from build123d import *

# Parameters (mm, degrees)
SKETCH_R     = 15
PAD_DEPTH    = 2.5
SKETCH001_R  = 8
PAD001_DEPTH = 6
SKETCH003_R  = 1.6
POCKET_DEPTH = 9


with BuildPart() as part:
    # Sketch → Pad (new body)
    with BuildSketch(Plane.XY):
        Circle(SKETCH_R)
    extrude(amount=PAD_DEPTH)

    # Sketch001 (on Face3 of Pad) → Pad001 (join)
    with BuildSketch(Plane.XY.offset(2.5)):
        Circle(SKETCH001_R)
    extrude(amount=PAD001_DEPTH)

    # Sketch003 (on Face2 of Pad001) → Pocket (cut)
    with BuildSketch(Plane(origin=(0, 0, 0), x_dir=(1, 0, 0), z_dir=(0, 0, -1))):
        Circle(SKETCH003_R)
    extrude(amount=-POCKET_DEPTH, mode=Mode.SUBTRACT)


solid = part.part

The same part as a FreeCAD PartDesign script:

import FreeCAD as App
import Part
import Sketcher
from FreeCAD import Vector

doc = App.newDocument("Part")
params = doc.addObject("Spreadsheet::Sheet", "Params")
for row, (alias, value) in enumerate([
    ("sketch1_diameter", "30 mm"),
    ("pad1_length", "2.5 mm"),
    ("sketch2_diameter", "16 mm"),
    ("pad2_length", "6 mm"),
    ("sketch3_diameter", "3.2 mm"),
    ("pocket1_length", "9 mm"),
], start=1):
    params.set(f"A{row}", alias)
    params.set(f"B{row}", "=" + value)
    params.setAlias(f"B{row}", alias)

body = doc.addObject("PartDesign::Body", "Body")

# Sketch on XY plane
sketch1 = body.newObject("Sketcher::SketchObject", "Sketch")
sketch1.AttachmentSupport = (doc.getObject("XY_Plane"), [""])
sketch1.MapMode = "FlatFace"
sketch1.addGeometry(Part.Circle(Vector(0, 0, 0), Vector(0, 0, 1), 15), False)
sketch1.addConstraint([
    Sketcher.Constraint("Coincident", 0, 3, -1, 1),
    Sketcher.Constraint("Diameter", 0, 30.0),
])
sketch1.setExpression("Constraints[1]", "Params.sketch1_diameter")
pad1 = body.newObject("PartDesign::Pad", "Pad")
pad1.Profile = sketch1
pad1.setExpression("Length", "Params.pad1_length")

# Sketch on XY plane
sketch2 = body.newObject("Sketcher::SketchObject", "Sketch001")
sketch2.AttachmentSupport = (doc.getObject("XY_Plane"), [""])
sketch2.MapMode = "FlatFace"
sketch2.AttachmentOffset = App.Placement(Vector(0, 0, 2.5), App.Rotation())
sketch2.addGeometry(Part.Circle(Vector(0, 0, 0), Vector(0, 0, 1), 8), False)
sketch2.addConstraint([
    Sketcher.Constraint("Coincident", 0, 3, -1, 1),
    Sketcher.Constraint("Diameter", 0, 16.0),
])
sketch2.setExpression("Constraints[1]", "Params.sketch2_diameter")
pad2 = body.newObject("PartDesign::Pad", "Pad001")
pad2.Profile = sketch2
pad2.setExpression("Length", "Params.pad2_length")

# Sketch on XY plane
sketch3 = body.newObject("Sketcher::SketchObject", "Sketch002")
sketch3.AttachmentSupport = (doc.getObject("XY_Plane"), [""])
sketch3.MapMode = "FlatFace"
sketch3.addGeometry(Part.Circle(Vector(0, 0, 0), Vector(0, 0, 1), 1.6), False)
sketch3.addConstraint([
    Sketcher.Constraint("Coincident", 0, 3, -1, 1),
    Sketcher.Constraint("Diameter", 0, 3.2),
])
sketch3.setExpression("Constraints[1]", "Params.sketch3_diameter")
pocket1 = body.newObject("PartDesign::Pocket", "Pocket")
pocket1.Profile = sketch3
pocket1.setExpression("Length", "Params.pocket1_length")
pocket1.Reversed = True

doc.recompute()
